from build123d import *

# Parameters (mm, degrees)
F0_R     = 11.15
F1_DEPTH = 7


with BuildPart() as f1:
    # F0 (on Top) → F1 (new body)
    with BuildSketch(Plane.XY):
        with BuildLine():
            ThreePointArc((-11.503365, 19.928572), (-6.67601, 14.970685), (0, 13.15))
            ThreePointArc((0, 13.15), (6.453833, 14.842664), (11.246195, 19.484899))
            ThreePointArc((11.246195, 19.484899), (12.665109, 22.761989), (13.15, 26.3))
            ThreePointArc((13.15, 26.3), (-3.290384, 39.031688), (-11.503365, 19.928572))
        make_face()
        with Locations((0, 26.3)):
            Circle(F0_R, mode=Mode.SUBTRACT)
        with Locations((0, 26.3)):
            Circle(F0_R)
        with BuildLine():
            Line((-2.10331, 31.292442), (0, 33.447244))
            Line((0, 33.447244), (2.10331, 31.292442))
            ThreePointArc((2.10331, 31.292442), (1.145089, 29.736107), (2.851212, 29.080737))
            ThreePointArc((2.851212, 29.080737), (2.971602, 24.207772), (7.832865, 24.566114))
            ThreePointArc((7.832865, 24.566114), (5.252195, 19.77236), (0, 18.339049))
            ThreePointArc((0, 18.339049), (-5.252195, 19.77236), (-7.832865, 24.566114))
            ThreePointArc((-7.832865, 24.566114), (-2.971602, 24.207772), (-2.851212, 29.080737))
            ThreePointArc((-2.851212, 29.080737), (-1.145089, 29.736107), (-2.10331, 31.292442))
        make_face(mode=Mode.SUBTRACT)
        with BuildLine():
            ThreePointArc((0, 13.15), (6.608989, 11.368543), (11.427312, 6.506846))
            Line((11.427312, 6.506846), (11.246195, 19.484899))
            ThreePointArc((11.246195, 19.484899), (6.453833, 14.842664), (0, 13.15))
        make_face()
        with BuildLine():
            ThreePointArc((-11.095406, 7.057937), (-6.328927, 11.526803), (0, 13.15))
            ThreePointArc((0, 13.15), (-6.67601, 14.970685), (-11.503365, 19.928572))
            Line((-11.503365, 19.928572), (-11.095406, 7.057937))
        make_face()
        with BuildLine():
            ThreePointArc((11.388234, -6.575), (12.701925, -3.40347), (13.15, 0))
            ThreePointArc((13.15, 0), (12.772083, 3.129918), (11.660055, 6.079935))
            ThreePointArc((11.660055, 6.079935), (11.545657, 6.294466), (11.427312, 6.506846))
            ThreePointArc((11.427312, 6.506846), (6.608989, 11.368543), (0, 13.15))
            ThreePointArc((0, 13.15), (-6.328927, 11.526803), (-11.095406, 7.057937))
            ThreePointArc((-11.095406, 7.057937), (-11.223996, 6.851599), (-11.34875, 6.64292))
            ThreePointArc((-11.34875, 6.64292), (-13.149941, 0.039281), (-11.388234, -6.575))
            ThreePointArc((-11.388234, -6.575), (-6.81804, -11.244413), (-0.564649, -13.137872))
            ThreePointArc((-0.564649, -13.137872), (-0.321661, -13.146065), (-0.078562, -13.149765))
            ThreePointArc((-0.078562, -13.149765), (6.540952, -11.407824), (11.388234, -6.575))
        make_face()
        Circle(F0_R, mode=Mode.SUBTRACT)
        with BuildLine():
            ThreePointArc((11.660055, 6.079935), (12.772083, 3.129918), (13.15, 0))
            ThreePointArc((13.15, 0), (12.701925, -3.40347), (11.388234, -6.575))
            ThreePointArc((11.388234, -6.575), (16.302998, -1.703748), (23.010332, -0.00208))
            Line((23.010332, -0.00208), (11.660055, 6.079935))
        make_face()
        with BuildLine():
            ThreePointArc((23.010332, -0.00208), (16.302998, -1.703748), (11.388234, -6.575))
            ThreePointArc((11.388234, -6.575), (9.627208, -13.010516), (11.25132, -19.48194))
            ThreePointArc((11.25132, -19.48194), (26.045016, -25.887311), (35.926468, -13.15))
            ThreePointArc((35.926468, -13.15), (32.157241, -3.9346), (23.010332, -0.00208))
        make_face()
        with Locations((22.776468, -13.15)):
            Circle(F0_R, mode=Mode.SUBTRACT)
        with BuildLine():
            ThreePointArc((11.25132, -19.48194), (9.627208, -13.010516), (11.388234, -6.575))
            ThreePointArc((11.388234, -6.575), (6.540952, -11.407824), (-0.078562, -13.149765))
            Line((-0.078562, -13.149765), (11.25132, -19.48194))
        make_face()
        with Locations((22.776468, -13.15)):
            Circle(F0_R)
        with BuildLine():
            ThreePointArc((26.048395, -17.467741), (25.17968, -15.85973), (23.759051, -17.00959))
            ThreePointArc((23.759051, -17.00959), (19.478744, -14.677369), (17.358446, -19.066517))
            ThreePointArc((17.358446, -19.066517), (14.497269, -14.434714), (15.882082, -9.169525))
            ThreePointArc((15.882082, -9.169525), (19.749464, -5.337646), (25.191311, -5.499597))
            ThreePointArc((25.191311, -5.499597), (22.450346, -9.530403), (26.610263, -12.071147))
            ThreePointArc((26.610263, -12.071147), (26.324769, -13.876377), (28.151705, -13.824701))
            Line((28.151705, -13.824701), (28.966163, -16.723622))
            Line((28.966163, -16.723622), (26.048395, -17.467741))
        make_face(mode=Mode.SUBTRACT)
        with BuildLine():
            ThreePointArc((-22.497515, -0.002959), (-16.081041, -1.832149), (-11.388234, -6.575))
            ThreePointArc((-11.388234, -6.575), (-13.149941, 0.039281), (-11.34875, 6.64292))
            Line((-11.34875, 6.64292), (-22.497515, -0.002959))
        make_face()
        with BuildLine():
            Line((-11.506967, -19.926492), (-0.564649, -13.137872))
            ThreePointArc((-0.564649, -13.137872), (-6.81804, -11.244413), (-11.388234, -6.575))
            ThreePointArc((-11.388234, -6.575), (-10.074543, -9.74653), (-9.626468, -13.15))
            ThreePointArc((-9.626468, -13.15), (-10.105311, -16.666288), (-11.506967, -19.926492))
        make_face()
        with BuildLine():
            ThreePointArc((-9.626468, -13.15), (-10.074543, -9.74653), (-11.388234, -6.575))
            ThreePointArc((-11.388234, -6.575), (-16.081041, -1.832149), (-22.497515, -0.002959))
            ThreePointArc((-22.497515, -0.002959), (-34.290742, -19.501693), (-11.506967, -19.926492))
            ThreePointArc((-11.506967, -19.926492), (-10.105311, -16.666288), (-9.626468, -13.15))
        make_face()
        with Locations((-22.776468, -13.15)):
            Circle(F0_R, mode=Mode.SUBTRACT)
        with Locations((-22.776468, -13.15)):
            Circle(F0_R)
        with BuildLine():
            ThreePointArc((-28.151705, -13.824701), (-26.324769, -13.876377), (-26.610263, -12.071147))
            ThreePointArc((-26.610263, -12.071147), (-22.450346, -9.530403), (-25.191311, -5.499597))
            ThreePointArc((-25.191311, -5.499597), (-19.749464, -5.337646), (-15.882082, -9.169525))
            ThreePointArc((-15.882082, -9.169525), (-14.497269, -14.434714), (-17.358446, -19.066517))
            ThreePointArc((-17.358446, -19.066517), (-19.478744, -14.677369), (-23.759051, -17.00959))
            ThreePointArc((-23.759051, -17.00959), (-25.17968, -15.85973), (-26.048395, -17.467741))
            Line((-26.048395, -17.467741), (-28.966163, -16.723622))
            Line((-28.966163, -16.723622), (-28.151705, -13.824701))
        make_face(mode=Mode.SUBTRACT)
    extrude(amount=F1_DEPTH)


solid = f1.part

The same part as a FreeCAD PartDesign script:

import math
import FreeCAD as App
import Part
import Sketcher

V = App.Vector

doc = App.newDocument("Part")
body = doc.addObject("PartDesign::Body", "Body")

# Sketch on XY plane
sketch1 = doc.addObject("Sketcher::SketchObject", "Sketch")
body.addObject(sketch1)
sketch1.AttachmentSupport = (doc.XY_Plane, [""])
sketch1.MapMode = "FlatFace"
sketch1.addGeometry(Part.LineSegment(V(11.43, 6.51, 0), V(11.25, 19.48, 0)), False)
sketch1.addGeometry(Part.ArcOfCircle(Part.Circle(V(0, 26.3, 0), V(0, 0, 1), 13.15), math.radians(-31), math.radians(0)), False)
sketch1.addGeometry(Part.ArcOfCircle(Part.Circle(V(0, 26.3, 0), V(0, 0, 1), 13.15), math.radians(0), math.radians(209)), False)
sketch1.addGeometry(Part.LineSegment(V(-11.5, 19.93, 0), V(-11.1, 7.06, 0)), False)
sketch1.addGeometry(Part.ArcOfCircle(Part.Circle(V(0, 0, 0), V(0, 0, 1), 13.15), math.radians(147.54), math.radians(149.66)), False)
sketch1.addGeometry(Part.LineSegment(V(-11.35, 6.64, 0), V(-22.5, 0, 0)), False)
sketch1.addGeometry(Part.ArcOfCircle(Part.Circle(V(-22.78, -13.15, 0), V(0, 0, 1), 13.15), math.radians(89), math.radians(329)), False)
sketch1.addGeometry(Part.LineSegment(V(-11.51, -19.93, 0), V(-0.56, -13.14, 0)), False)
sketch1.addGeometry(Part.ArcOfCircle(Part.Circle(V(0, 0, 0), V(0, 0, 1), 13.15), math.radians(-92.46), math.radians(-90.34)), False)
sketch1.addGeometry(Part.LineSegment(V(-0.08, -13.15, 0), V(11.25, -19.48, 0)), False)
sketch1.addGeometry(Part.ArcOfCircle(Part.Circle(V(22.78, -13.15, 0), V(0, 0, 1), 13.15), math.radians(-151), math.radians(0)), False)
sketch1.addGeometry(Part.ArcOfCircle(Part.Circle(V(22.78, -13.15, 0), V(0, 0, 1), 13.15), math.radians(0), math.radians(89)), False)
sketch1.addGeometry(Part.LineSegment(V(23.01, 0, 0), V(11.66, 6.08, 0)), False)
sketch1.addGeometry(Part.ArcOfCircle(Part.Circle(V(0, 0, 0), V(0, 0, 1), 13.15), math.radians(27.54), math.radians(29.66)), False)
sketch1.addGeometry(Part.LineSegment(V(-28.97, -16.72, 0), V(-28.15, -13.82, 0)), False)
sketch1.addGeometry(Part.ArcOfCircle(Part.Circle(V(-27.22, -13.09, 0), V(0, 0, 1), 1.19), math.radians(-142), math.radians(59)), False)
sketch1.addGeometry(Part.ArcOfCircle(Part.Circle(V(-25.74, -8.82, 0), V(0, 0, 1), 3.37), math.radians(-105), math.radians(81)), False)
sketch1.addGeometry(Part.ArcOfCircle(Part.Circle(V(-22.28, -11.76, 0), V(0, 0, 1), 6.9), math.radians(22), math.radians(115)), False)
sketch1.addGeometry(Part.ArcOfCircle(Part.Circle(V(-21.33, -13.42, 0), V(0, 0, 1), 6.9), math.radians(-55), math.radians(38)), False)
sketch1.addGeometry(Part.ArcOfCircle(Part.Circle(V(-20.51, -17.88, 0), V(0, 0, 1), 3.37), math.radians(-21), math.radians(165)), False)
sketch1.addGeometry(Part.ArcOfCircle(Part.Circle(V(-24.95, -17.02, 0), V(0, 0, 1), 1.19), math.radians(1), math.radians(202)), False)
sketch1.addGeometry(Part.LineSegment(V(-26.05, -17.47, 0), V(-28.97, -16.72, 0)), False)
sketch1.addGeometry(Part.LineSegment(V(28.97, -16.72, 0), V(26.05, -17.47, 0)), False)
sketch1.addGeometry(Part.ArcOfCircle(Part.Circle(V(24.95, -17.02, 0), V(0, 0, 1), 1.19), math.radians(-22), math.radians(179)), False)
sketch1.addGeometry(Part.ArcOfCircle(Part.Circle(V(20.51, -17.88, 0), V(0, 0, 1), 3.37), math.radians(15), math.radians(201)), False)
sketch1.addGeometry(Part.ArcOfCircle(Part.Circle(V(21.33, -13.42, 0), V(0, 0, 1), 6.9), math.radians(142), math.radians(235)), False)
sketch1.addGeometry(Part.ArcOfCircle(Part.Circle(V(22.28, -11.76, 0), V(0, 0, 1), 6.9), math.radians(65), math.radians(158)), False)
sketch1.addGeometry(Part.ArcOfCircle(Part.Circle(V(25.74, -8.82, 0), V(0, 0, 1), 3.37), math.radians(99), math.radians(285)), False)
sketch1.addGeometry(Part.ArcOfCircle(Part.Circle(V(27.22, -13.09, 0), V(0, 0, 1), 1.19), math.radians(121), math.radians(322)), False)
sketch1.addGeometry(Part.LineSegment(V(28.15, -13.82, 0), V(28.97, -16.72, 0)), False)
sketch1.addGeometry(Part.Circle(V(0, 0, 0), V(0, 0, 1), 11.15), False)
sketch1.addGeometry(Part.ArcOfCircle(Part.Circle(V(-2.27, 30.12, 0), V(0, 0, 1), 1.19), math.radians(-119), math.radians(82)), False)
sketch1.addGeometry(Part.LineSegment(V(-2.1, 31.29, 0), V(0, 33.45, 0)), False)
sketch1.addGeometry(Part.LineSegment(V(0, 33.45, 0), V(2.1, 31.29, 0)), False)
sketch1.addGeometry(Part.ArcOfCircle(Part.Circle(V(2.27, 30.12, 0), V(0, 0, 1), 1.19), math.radians(98), math.radians(299)), False)
sketch1.addGeometry(Part.ArcOfCircle(Part.Circle(V(5.23, 26.7, 0), V(0, 0, 1), 3.37), math.radians(135), math.radians(321)), False)
sketch1.addGeometry(Part.ArcOfCircle(Part.Circle(V(0.96, 25.18, 0), V(0, 0, 1), 6.9), math.radians(-98), math.radians(-5)), False)
sketch1.addGeometry(Part.ArcOfCircle(Part.Circle(V(-0.96, 25.18, 0), V(0, 0, 1), 6.9), math.radians(-175), math.radians(-82)), False)
sketch1.addGeometry(Part.ArcOfCircle(Part.Circle(V(-5.23, 26.7, 0), V(0, 0, 1), 3.37), math.radians(-141), math.radians(45)), False)
sketch1.addConstraint(Sketcher.Constraint("Coincident", 0, 2, 1, 1))
sketch1.addConstraint(Sketcher.Constraint("Tangent", 1, 2, 2, 1))
sketch1.addConstraint(Sketcher.Constraint("Coincident", 2, 2, 3, 1))
sketch1.addConstraint(Sketcher.Constraint("Coincident", 3, 2, 4, 1))
sketch1.addConstraint(Sketcher.Constraint("Coincident", 4, 2, 5, 1))
sketch1.addConstraint(Sketcher.Constraint("Coincident", 5, 2, 6, 1))
sketch1.addConstraint(Sketcher.Constraint("Coincident", 6, 2, 7, 1))
sketch1.addConstraint(Sketcher.Constraint("Coincident", 7, 2, 8, 1))
sketch1.addConstraint(Sketcher.Constraint("Coincident", 8, 2, 9, 1))
sketch1.addConstraint(Sketcher.Constraint("Coincident", 9, 2, 10, 1))
sketch1.addConstraint(Sketcher.Constraint("Tangent", 10, 2, 11, 1))
sketch1.addConstraint(Sketcher.Constraint("Coincident", 11, 2, 12, 1))
sketch1.addConstraint(Sketcher.Constraint("Coincident", 12, 2, 13, 1))
sketch1.addConstraint(Sketcher.Constraint("Coincident", 13, 2, 0, 1))
sketch1.addConstraint(Sketcher.Constraint("Coincident", 14, 2, 15, 1))
sketch1.addConstraint(Sketcher.Constraint("Coincident", 15, 2, 16, 1))
sketch1.addConstraint(Sketcher.Constraint("Coincident", 16, 2, 17, 2))
sketch1.addConstraint(Sketcher.Constraint("Coincident", 17, 1, 18, 2))
sketch1.addConstraint(Sketcher.Constraint("Coincident", 18, 1, 19, 1))
sketch1.addConstraint(Sketcher.Constraint("Coincident", 19, 2, 20, 1))
sketch1.addConstraint(Sketcher.Constraint("Coincident", 20, 2, 21, 1))
sketch1.addConstraint(Sketcher.Constraint("Coincident", 21, 2, 14, 1))
sketch1.addConstraint(Sketcher.Constraint("Coincident", 22, 2, 23, 1))
sketch1.addConstraint(Sketcher.Constraint("Coincident", 23, 2, 24, 1))
sketch1.addConstraint(Sketcher.Constraint("Coincident", 24, 2, 25, 2))
sketch1.addConstraint(Sketcher.Constraint("Coincident", 25, 1, 26, 2))
sketch1.addConstraint(Sketcher.Constraint("Coincident", 26, 1, 27, 1))
sketch1.addConstraint(Sketcher.Constraint("Coincident", 27, 2, 28, 1))
sketch1.addConstraint(Sketcher.Constraint("Coincident", 28, 2, 29, 1))
sketch1.addConstraint(Sketcher.Constraint("Coincident", 29, 2, 22, 1))
sketch1.addConstraint(Sketcher.Constraint("Coincident", 31, 2, 32, 1))
sketch1.addConstraint(Sketcher.Constraint("Coincident", 32, 2, 33, 1))
sketch1.addConstraint(Sketcher.Constraint("Coincident", 33, 2, 34, 1))
sketch1.addConstraint(Sketcher.Constraint("Coincident", 34, 2, 35, 1))
sketch1.addConstraint(Sketcher.Constraint("Coincident", 35, 2, 36, 2))
sketch1.addConstraint(Sketcher.Constraint("Coincident", 36, 1, 37, 2))
sketch1.addConstraint(Sketcher.Constraint("Coincident", 37, 1, 38, 1))
sketch1.addConstraint(Sketcher.Constraint("Coincident", 38, 2, 31, 1))
sketch1.addConstraint(Sketcher.Constraint("Coincident", 30, 3, -1, 1))
sketch1.addConstraint(Sketcher.Constraint("Equal", 2, 6))
sketch1.addConstraint(Sketcher.Constraint("Equal", 6, 10))
sketch1.addConstraint(Sketcher.Constraint("Equal", 10, 11))
sketch1.addConstraint(Sketcher.Constraint("Equal", 17, 18))
sketch1.addConstraint(Sketcher.Constraint("Equal", 16, 19))
sketch1.addConstraint(Sketcher.Constraint("Equal", 15, 20))
sketch1.addConstraint(Sketcher.Constraint("Equal", 20, 23))
sketch1.addConstraint(Sketcher.Constraint("Equal", 19, 24))
sketch1.addConstraint(Sketcher.Constraint("Equal", 18, 25))
sketch1.addConstraint(Sketcher.Constraint("Equal", 25, 26))
sketch1.addConstraint(Sketcher.Constraint("Equal", 24, 27))
sketch1.addConstraint(Sketcher.Constraint("Equal", 23, 28))
sketch1.addConstraint(Sketcher.Constraint("Equal", 28, 31))
sketch1.addConstraint(Sketcher.Constraint("Equal", 31, 34))
sketch1.addConstraint(Sketcher.Constraint("Equal", 27, 35))
sketch1.addConstraint(Sketcher.Constraint("Equal", 26, 36))
sketch1.addConstraint(Sketcher.Constraint("Equal", 36, 37))
sketch1.addConstraint(Sketcher.Constraint("Equal", 35, 38))
sketch1.addConstraint(Sketcher.Constraint("Symmetric", 6, 3, 10, 3, -2))
sketch1.addConstraint(Sketcher.Constraint("Symmetric", 20, 3, 23, 3, -2))
sketch1.addConstraint(Sketcher.Constraint("Symmetric", 19, 3, 24, 3, -2))
sketch1.addConstraint(Sketcher.Constraint("Symmetric", 18, 3, 25, 3, -2))
sketch1.addConstraint(Sketcher.Constraint("Symmetric", 17, 3, 26, 3, -2))
sketch1.addConstraint(Sketcher.Constraint("Symmetric", 16, 3, 27, 3, -2))
sketch1.addConstraint(Sketcher.Constraint("Symmetric", 15, 3, 28, 3, -2))
sketch1.addConstraint(Sketcher.Constraint("Symmetric", 31, 3, 34, 3, -2))
sketch1.addConstraint(Sketcher.Constraint("Symmetric", 36, 3, 37, 3, -2))
sketch1.addConstraint(Sketcher.Constraint("Symmetric", 35, 3, 38, 3, -2))
sketch1.addConstraint(Sketcher.Constraint("Symmetric", 21, 2, 29, 2, -2))
sketch1.addConstraint(Sketcher.Constraint("PointOnObject", 2, 3, -2))
sketch1.addConstraint(Sketcher.Constraint("PointOnObject", 32, 2, -2))
sketch1.addConstraint(Sketcher.Constraint("Horizontal", 2, 3, 1, 2))
sketch1.addConstraint(Sketcher.Constraint("Horizontal", 11, 3, 10, 2))
sketch1.addConstraint(Sketcher.Constraint("Horizontal", 20, 2, 22, 2))
sketch1.addConstraint(Sketcher.Constraint("Horizontal", 14, 2, 28, 2))
sketch1.addConstraint(Sketcher.Constraint("Horizontal", 31, 2, 33, 2))
sketch1.addConstraint(Sketcher.Constraint("Equal", 0, 5))
sketch1.addConstraint(Sketcher.Constraint("Equal", 3, 7))
sketch1.addConstraint(Sketcher.Constraint("Equal", 5, 9))
sketch1.addConstraint(Sketcher.Constraint("Equal", 7, 12))
sketch1.addConstraint(Sketcher.Constraint("Equal", 14, 21))
sketch1.addConstraint(Sketcher.Constraint("Equal", 29, 32))
sketch1.addConstraint(Sketcher.Constraint("Diameter", 30, 22.3))
sketch1.addConstraint(Sketcher.Constraint("Radius", 2, 13.15))
sketch1.addConstraint(Sketcher.Constraint("DistanceY", -1, 1, 1, 3, 26.299998))
sketch1.addConstraint(Sketcher.Constraint("DistanceY", 6, 3, -1, 1, 13.15))
sketch1.addConstraint(Sketcher.Constraint("Radius", 4, 13.153511))
sketch1.addConstraint(Sketcher.Constraint("Radius", 8, 13.152131))
sketch1.addConstraint(Sketcher.Constraint("Radius", 16, 3.365518))
sketch1.addConstraint(Sketcher.Constraint("Radius", 17, 6.904291))
sketch1.addConstraint(Sketcher.Constraint("DistanceX", 18, 3, -1, 1, 21.326))
sketch1.addConstraint(Sketcher.Constraint("Radius", 1, 13.149994))
sketch1.addConstraint(Sketcher.Constraint("Radius", 13, 13.150116))
sketch1.addConstraint(Sketcher.Constraint("Radius", 15, 1.187662))
sketch1.addConstraint(Sketcher.Constraint("Distance", 3, 12.877099))
sketch1.addConstraint(Sketcher.Constraint("DistanceY", 19, 3, -1, 1, 17.881498))
sketch1.addConstraint(Sketcher.Constraint("DistanceY", 20, 3, -1, 1, 17.024301))
sketch1.addConstraint(Sketcher.Constraint("DistanceY", -1, 1, 0, 2, 19.484899))
sketch1.addConstraint(Sketcher.Constraint("DistanceY", 14, 2, -1, 1, 13.824701))
sketch1.addConstraint(Sketcher.Constraint("Distance", 14, 3.01116))
sketch1.addConstraint(Sketcher.Constraint("DistanceX", 6, 3, -1, 1, 22.776468))
sketch1.addConstraint(Sketcher.Constraint("DistanceY", -1, 1, 8, 3, 0.002131))
sketch1.addConstraint(Sketcher.Constraint("DistanceX", 13, 3, -1, 1, 0.000108))
sketch1.addConstraint(Sketcher.Constraint("DistanceX", 15, 3, -1, 1, 27.216789))
sketch1.addConstraint(Sketcher.Constraint("DistanceY", 15, 3, -1, 1, 13.092258))
sketch1.addConstraint(Sketcher.Constraint("DistanceX", 16, 3, -1, 1, 25.74005))
sketch1.addConstraint(Sketcher.Constraint("DistanceY", 16, 3, -1, 1, 8.820079))
sketch1.addConstraint(Sketcher.Constraint("DistanceX", 17, 3, -1, 1, 22.281641))
sketch1.addConstraint(Sketcher.Constraint("DistanceY", 17, 3, -1, 1, 11.760831))
sketch1.addConstraint(Sketcher.Constraint("DistanceY", -1, 1, 31, 3, 30.116559))
sketch1.addConstraint(Sketcher.Constraint("DistanceY", -1, 1, 2, 2, 19.928572))
sketch1.addConstraint(Sketcher.Constraint("DistanceX", 4, 2, -1, 1, 11.34875))
sketch1.addConstraint(Sketcher.Constraint("DistanceY", -1, 1, 4, 2, 6.64292))
sketch1.addConstraint(Sketcher.Constraint("DistanceY", 5, 2, -1, 1, 0.002959))
sketch1.addConstraint(Sketcher.Constraint("DistanceX", 7, 2, -1, 1, 0.564649))
sketch1.addConstraint(Sketcher.Constraint("DistanceX", -1, 1, 9, 2, 11.25132))
sketch1.addConstraint(Sketcher.Constraint("DistanceX", -1, 1, 11, 2, 23.010332))
sketch1.addConstraint(Sketcher.Constraint("DistanceX", 17, 1, -1, 1, 15.882082))
sketch1.addConstraint(Sketcher.Constraint("DistanceX", 19, 2, -1, 1, 23.759051))
sketch1.addConstraint(Sketcher.Constraint("DistanceY", 19, 2, -1, 1, 17.00959))
sketch1.addConstraint(Sketcher.Constraint("DistanceY", 20, 2, -1, 1, 17.467741))
sketch1.addConstraint(Sketcher.Constraint("DistanceX", 31, 2, -1, 1, 2.10331))
sketch1.addConstraint(Sketcher.Constraint("DistanceX", -1, 1, 34, 2, 2.851212))
sketch1.addConstraint(Sketcher.Constraint("DistanceY", -1, 1, 36, 1, 18.339049))
sketch1.addConstraint(Sketcher.Constraint("DistanceX", -1, 1, 4, 3, 0.002995))
sketch1.addConstraint(Sketcher.Constraint("DistanceX", 31, 3, -1, 1, 2.270166))
sketch1.addConstraint(Sketcher.Constraint("DistanceX", -1, 1, 35, 3, 5.231613))
sketch1.addConstraint(Sketcher.Constraint("DistanceX", -1, 1, 36, 3, 0.955643))
sketch1.addConstraint(Sketcher.Constraint("DistanceY", 7, 2, -1, 1, 13.137872))
sketch1.addConstraint(Sketcher.Constraint("DistanceX", -1, 1, 12, 2, 11.660055))
pad1 = doc.addObject("PartDesign::Pad", "Pad")
body.addObject(pad1)
pad1.Profile = sketch1
pad1.Length = 7

doc.recompute()
